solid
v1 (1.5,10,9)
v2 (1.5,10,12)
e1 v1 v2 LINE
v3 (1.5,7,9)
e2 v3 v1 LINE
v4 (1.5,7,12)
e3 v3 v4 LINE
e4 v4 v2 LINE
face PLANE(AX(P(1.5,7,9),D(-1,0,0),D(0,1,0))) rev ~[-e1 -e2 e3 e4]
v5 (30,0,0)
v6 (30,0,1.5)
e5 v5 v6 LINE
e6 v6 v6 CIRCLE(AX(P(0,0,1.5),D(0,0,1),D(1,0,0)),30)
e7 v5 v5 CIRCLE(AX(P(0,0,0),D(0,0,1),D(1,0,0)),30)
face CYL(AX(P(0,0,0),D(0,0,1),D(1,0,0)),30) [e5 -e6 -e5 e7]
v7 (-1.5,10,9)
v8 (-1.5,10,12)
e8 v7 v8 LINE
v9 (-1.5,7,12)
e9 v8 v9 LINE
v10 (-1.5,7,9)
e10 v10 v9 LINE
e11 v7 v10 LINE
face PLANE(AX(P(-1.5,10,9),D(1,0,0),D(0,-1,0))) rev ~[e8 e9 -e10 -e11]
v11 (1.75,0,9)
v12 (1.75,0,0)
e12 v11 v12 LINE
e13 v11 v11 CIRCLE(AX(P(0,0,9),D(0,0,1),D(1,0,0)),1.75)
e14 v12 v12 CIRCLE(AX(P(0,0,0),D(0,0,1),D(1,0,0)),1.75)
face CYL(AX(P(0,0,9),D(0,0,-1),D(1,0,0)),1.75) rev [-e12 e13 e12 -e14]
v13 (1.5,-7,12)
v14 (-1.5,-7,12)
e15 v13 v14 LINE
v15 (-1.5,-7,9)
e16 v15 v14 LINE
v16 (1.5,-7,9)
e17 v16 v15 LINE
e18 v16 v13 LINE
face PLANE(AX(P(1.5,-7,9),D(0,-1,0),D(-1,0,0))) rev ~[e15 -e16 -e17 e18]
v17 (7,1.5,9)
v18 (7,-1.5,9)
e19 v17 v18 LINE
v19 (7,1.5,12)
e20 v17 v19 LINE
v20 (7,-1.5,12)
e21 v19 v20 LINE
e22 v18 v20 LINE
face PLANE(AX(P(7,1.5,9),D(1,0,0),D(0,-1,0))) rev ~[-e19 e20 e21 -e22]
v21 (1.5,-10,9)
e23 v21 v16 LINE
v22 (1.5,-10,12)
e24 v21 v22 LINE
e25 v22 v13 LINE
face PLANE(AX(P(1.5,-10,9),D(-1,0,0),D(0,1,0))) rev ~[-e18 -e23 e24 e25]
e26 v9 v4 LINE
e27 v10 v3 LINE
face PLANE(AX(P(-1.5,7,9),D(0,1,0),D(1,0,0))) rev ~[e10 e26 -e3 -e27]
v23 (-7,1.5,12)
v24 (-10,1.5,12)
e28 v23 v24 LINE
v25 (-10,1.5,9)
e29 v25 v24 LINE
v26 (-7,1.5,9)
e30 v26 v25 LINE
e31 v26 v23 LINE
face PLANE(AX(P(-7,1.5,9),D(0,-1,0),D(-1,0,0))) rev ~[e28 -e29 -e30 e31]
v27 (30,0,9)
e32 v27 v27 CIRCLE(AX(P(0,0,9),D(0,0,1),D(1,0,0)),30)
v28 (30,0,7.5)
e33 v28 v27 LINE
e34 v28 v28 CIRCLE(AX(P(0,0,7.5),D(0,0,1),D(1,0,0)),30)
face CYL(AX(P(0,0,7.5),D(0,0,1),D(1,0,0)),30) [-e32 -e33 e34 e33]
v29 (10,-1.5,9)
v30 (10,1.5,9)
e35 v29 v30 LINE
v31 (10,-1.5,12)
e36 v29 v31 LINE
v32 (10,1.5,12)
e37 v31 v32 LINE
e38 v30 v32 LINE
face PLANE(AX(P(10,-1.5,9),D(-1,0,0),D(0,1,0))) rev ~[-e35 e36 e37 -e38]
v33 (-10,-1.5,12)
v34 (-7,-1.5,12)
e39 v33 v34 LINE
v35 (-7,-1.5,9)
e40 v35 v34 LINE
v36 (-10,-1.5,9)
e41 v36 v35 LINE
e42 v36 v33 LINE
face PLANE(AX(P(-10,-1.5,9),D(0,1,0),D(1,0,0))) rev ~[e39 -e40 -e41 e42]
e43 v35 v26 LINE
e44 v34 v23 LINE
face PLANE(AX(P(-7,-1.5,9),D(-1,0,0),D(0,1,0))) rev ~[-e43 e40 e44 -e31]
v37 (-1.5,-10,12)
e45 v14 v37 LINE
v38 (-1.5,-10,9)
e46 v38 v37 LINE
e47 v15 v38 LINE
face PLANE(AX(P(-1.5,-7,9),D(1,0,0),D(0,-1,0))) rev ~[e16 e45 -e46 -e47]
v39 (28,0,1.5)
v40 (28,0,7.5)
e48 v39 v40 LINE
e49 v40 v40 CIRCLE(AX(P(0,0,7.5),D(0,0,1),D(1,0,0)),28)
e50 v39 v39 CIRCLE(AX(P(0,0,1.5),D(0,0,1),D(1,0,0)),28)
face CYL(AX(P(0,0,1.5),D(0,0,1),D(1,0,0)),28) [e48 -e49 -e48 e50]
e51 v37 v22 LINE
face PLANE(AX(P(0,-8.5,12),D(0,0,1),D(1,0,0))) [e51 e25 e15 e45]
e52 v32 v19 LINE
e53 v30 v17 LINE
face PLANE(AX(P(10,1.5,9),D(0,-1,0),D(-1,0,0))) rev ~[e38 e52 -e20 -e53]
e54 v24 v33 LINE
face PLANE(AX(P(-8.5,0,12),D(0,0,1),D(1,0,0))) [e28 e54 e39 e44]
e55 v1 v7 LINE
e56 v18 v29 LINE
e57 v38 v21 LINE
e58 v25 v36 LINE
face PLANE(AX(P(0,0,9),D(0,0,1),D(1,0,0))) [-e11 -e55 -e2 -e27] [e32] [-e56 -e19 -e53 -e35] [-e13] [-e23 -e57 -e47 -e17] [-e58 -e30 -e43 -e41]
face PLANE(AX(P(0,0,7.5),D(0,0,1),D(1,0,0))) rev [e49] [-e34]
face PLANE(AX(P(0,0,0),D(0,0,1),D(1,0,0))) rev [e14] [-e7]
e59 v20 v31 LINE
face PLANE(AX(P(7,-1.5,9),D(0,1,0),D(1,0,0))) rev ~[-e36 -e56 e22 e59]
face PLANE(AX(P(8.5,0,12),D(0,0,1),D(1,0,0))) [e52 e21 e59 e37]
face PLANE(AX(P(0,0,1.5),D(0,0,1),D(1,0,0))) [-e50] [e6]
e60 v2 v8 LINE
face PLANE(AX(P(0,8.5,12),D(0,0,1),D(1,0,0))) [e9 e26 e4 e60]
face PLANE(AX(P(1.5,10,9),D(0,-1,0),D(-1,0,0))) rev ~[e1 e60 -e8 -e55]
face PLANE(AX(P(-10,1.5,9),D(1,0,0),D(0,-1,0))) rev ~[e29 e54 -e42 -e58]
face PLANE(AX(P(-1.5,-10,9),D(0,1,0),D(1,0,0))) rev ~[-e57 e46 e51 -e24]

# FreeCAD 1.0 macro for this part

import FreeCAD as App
import Part
import Sketcher

doc = App.newDocument("Part")
body = doc.addObject("PartDesign::Body", "Body")

# Sketch on XZ plane
sketch1 = doc.addObject("Sketcher::SketchObject", "Sketch")
body.addObject(sketch1)
sketch1.AttachmentSupport = (doc.XZ_Plane, [""])
sketch1.MapMode = "FlatFace"
sketch1.addGeometry([
    Part.LineSegment(App.Vector(1.8, 9, 0), App.Vector(1.8, 0, 0)),  # 0
    Part.LineSegment(App.Vector(1.8, 0, 0), App.Vector(30, 0, 0)),  # 1
    Part.LineSegment(App.Vector(30, 0, 0), App.Vector(30, 1.5, 0)),  # 2
    Part.LineSegment(App.Vector(30, 1.5, 0), App.Vector(28, 1.5, 0)),  # 3
    Part.LineSegment(App.Vector(28, 1.5, 0), App.Vector(28, 7.5, 0)),  # 4
    Part.LineSegment(App.Vector(28, 7.5, 0), App.Vector(30, 7.5, 0)),  # 5
    Part.LineSegment(App.Vector(30, 7.5, 0), App.Vector(30, 9, 0)),  # 6
    Part.LineSegment(App.Vector(30, 9, 0), App.Vector(1.8, 9, 0)),  # 7
], False)
sketch1.addConstraint([
    Sketcher.Constraint("Coincident", 0, 2, 1, 1),
    Sketcher.Constraint("Coincident", 1, 2, 2, 1),
    Sketcher.Constraint("Coincident", 2, 2, 3, 1),
    Sketcher.Constraint("Coincident", 3, 2, 4, 1),
    Sketcher.Constraint("Coincident", 4, 2, 5, 1),
    Sketcher.Constraint("Coincident", 5, 2, 6, 1),
    Sketcher.Constraint("Coincident", 6, 2, 7, 1),
    Sketcher.Constraint("Coincident", 7, 2, 0, 1),
    Sketcher.Constraint("Vertical", 0),
    Sketcher.Constraint("Horizontal", 1),
    Sketcher.Constraint("Vertical", 2),
    Sketcher.Constraint("Horizontal", 3),
    Sketcher.Constraint("Vertical", 4),
    Sketcher.Constraint("Horizontal", 5),
    Sketcher.Constraint("Vertical", 6),
    Sketcher.Constraint("Horizontal", 7),
    Sketcher.Constraint("PointOnObject", 0, 2, -1),
    Sketcher.Constraint("Vertical", 2, 2, 5, 2),
    Sketcher.Constraint("Equal", 2, 6),
    Sketcher.Constraint("DistanceX", 3, 2, 3, 1, 2.0),
    Sketcher.Constraint("DistanceY", 0, 2, 0, 1, 9.0),
    Sketcher.Constraint("DistanceY", 4, 1, 4, 2, 6.0),
    Sketcher.Constraint("DistanceX", -1, 1, 1, 2, 30.0),
    Sketcher.Constraint("DistanceX", 1, 1, 1, 2, 28.25),
])
revolution = doc.addObject("PartDesign::Revolution", "Revolution")
body.addObject(revolution)
revolution.Profile = sketch1
revolution.ReferenceAxis = (sketch1, ["V_Axis"])
revolution.Angle = 360

# Sketch on XY plane
sketch2 = doc.addObject("Sketcher::SketchObject", "Sketch001")
body.addObject(sketch2)
sketch2.AttachmentSupport = (doc.XY_Plane, [""])
sketch2.MapMode = "FlatFace"
sketch2.AttachmentOffset = App.Placement(App.Vector(0, 0, 9), App.Rotation())
sketch2.addGeometry([
    Part.LineSegment(App.Vector(-1.5, 7, 0), App.Vector(1.5, 7, 0)),  # 0
    Part.LineSegment(App.Vector(1.5, 7, 0), App.Vector(1.5, 10, 0)),  # 1
    Part.LineSegment(App.Vector(1.5, 10, 0), App.Vector(-1.5, 10, 0)),  # 2
    Part.LineSegment(App.Vector(-1.5, 10, 0), App.Vector(-1.5, 7, 0)),  # 3
    Part.LineSegment(App.Vector(1.5, -7, 0), App.Vector(-1.5, -7, 0)),  # 4
    Part.LineSegment(App.Vector(-1.5, -7, 0), App.Vector(-1.5, -10, 0)),  # 5
    Part.LineSegment(App.Vector(-1.5, -10, 0), App.Vector(1.5, -10, 0)),  # 6
    Part.LineSegment(App.Vector(1.5, -10, 0), App.Vector(1.5, -7, 0)),  # 7
    Part.LineSegment(App.Vector(-7, -1.5, 0), App.Vector(-7, 1.5, 0)),  # 8
    Part.LineSegment(App.Vector(-7, 1.5, 0), App.Vector(-10, 1.5, 0)),  # 9
    Part.LineSegment(App.Vector(-10, 1.5, 0), App.Vector(-10, -1.5, 0)),  # 10
    Part.LineSegment(App.Vector(-10, -1.5, 0), App.Vector(-7, -1.5, 0)),  # 11
    Part.LineSegment(App.Vector(10, -1.5, 0), App.Vector(10, 1.5, 0)),  # 12
    Part.LineSegment(App.Vector(10, 1.5, 0), App.Vector(7, 1.5, 0)),  # 13
    Part.LineSegment(App.Vector(7, 1.5, 0), App.Vector(7, -1.5, 0)),  # 14
    Part.LineSegment(App.Vector(7, -1.5, 0), App.Vector(10, -1.5, 0)),  # 15
], False)
sketch2.addConstraint([
    Sketcher.Constraint("Coincident", 0, 2, 1, 1),
    Sketcher.Constraint("Coincident", 1, 2, 2, 1),
    Sketcher.Constraint("Coincident", 2, 2, 3, 1),
    Sketcher.Constraint("Coincident", 3, 2, 0, 1),
    Sketcher.Constraint("Coincident", 4, 2, 5, 1),
    Sketcher.Constraint("Coincident", 5, 2, 6, 1),
    Sketcher.Constraint("Coincident", 6, 2, 7, 1),
    Sketcher.Constraint("Coincident", 7, 2, 4, 1),
    Sketcher.Constraint("Coincident", 8, 2, 9, 1),
    Sketcher.Constraint("Coincident", 9, 2, 10, 1),
    Sketcher.Constraint("Coincident", 10, 2, 11, 1),
    Sketcher.Constraint("Coincident", 11, 2, 8, 1),
    Sketcher.Constraint("Coincident", 12, 2, 13, 1),
    Sketcher.Constraint("Coincident", 13, 2, 14, 1),
    Sketcher.Constraint("Coincident", 14, 2, 15, 1),
    Sketcher.Constraint("Coincident", 15, 2, 12, 1),
    Sketcher.Constraint("Horizontal", 0),
    Sketcher.Constraint("Vertical", 1),
    Sketcher.Constraint("Horizontal", 2),
    Sketcher.Constraint("Vertical", 3),
    Sketcher.Constraint("Horizontal", 4),
    Sketcher.Constraint("Vertical", 5),
    Sketcher.Constraint("Horizontal", 6),
    Sketcher.Constraint("Vertical", 7),
    Sketcher.Constraint("Vertical", 8),
    Sketcher.Constraint("Horizontal", 9),
    Sketcher.Constraint("Vertical", 10),
    Sketcher.Constraint("Horizontal", 11),
    Sketcher.Constraint("Vertical", 12),
    Sketcher.Constraint("Horizontal", 13),
    Sketcher.Constraint("Vertical", 14),
    Sketcher.Constraint("Horizontal", 15),
    Sketcher.Constraint("Symmetric", 0, 2, 4, 2, -1, 1),
    Sketcher.Constraint("Symmetric", 2, 2, 6, 2, -1, 1),
    Sketcher.Constraint("Symmetric", 10, 2, 12, 2, -1, 1),
    Sketcher.Constraint("Symmetric", 8, 2, 14, 2, -1, 1),
    Sketcher.Constraint("Horizontal", 9, 2, 12, 2),
    Sketcher.Constraint("Vertical", 3, 2, 4, 2),
    Sketcher.Constraint("Equal", 6, 9),
    Sketcher.Constraint("Equal", 15, 1),
    Sketcher.Constraint("Equal", 7, 8),
    Sketcher.Constraint("DistanceX", 0, 1, 0, 2, 3.0),
    Sketcher.Constraint("DistanceY", -1, 1, 0, 2, 7.0),
    Sketcher.Constraint("DistanceX", 8, 2, -1, 1, 7.0),
])
pad1 = doc.addObject("PartDesign::Pad", "Pad")
body.addObject(pad1)
pad1.Profile = sketch2
pad1.Length = 3

# Sketch on XY plane
sketch3 = doc.addObject("Sketcher::SketchObject", "Sketch002")
body.addObject(sketch3)
sketch3.AttachmentSupport = (doc.XY_Plane, [""])
sketch3.MapMode = "FlatFace"
sketch3.AttachmentOffset = App.Placement(App.Vector(0, 0, 9), App.Rotation())
sketch3.addGeometry([
    Part.LineSegment(App.Vector(-1.5, 7, 0), App.Vector(1.5, 7, 0)),  # 0
    Part.LineSegment(App.Vector(1.5, 7, 0), App.Vector(1.5, 10, 0)),  # 1
    Part.LineSegment(App.Vector(1.5, 10, 0), App.Vector(-1.5, 10, 0)),  # 2
    Part.LineSegment(App.Vector(-1.5, 10, 0), App.Vector(-1.5, 7, 0)),  # 3
    Part.LineSegment(App.Vector(-7, -1.5, 0), App.Vector(-7, 1.5, 0)),  # 4
    Part.LineSegment(App.Vector(-7, 1.5, 0), App.Vector(-10, 1.5, 0)),  # 5
    Part.LineSegment(App.Vector(-10, 1.5, 0), App.Vector(-10, -1.5, 0)),  # 6
    Part.LineSegment(App.Vector(-10, -1.5, 0), App.Vector(-7, -1.5, 0)),  # 7
    Part.LineSegment(App.Vector(1.5, -7, 0), App.Vector(-1.5, -7, 0)),  # 8
    Part.LineSegment(App.Vector(-1.5, -7, 0), App.Vector(-1.5, -10, 0)),  # 9
    Part.LineSegment(App.Vector(-1.5, -10, 0), App.Vector(1.5, -10, 0)),  # 10
    Part.LineSegment(App.Vector(1.5, -10, 0), App.Vector(1.5, -7, 0)),  # 11
    Part.LineSegment(App.Vector(10, -1.5, 0), App.Vector(10, 1.5, 0)),  # 12
    Part.LineSegment(App.Vector(10, 1.5, 0), App.Vector(7, 1.5, 0)),  # 13
    Part.LineSegment(App.Vector(7, 1.5, 0), App.Vector(7, -1.5, 0)),  # 14
    Part.LineSegment(App.Vector(7, -1.5, 0), App.Vector(10, -1.5, 0)),  # 15
], False)
sketch3.addConstraint([
    Sketcher.Constraint("Coincident", 0, 2, 1, 1),
    Sketcher.Constraint("Coincident", 1, 2, 2, 1),
    Sketcher.Constraint("Coincident", 2, 2, 3, 1),
    Sketcher.Constraint("Coincident", 3, 2, 0, 1),
    Sketcher.Constraint("Coincident", 4, 2, 5, 1),
    Sketcher.Constraint("Coincident", 5, 2, 6, 1),
    Sketcher.Constraint("Coincident", 6, 2, 7, 1),
    Sketcher.Constraint("Coincident", 7, 2, 4, 1),
    Sketcher.Constraint("Coincident", 8, 2, 9, 1),
    Sketcher.Constraint("Coincident", 9, 2, 10, 1),
    Sketcher.Constraint("Coincident", 10, 2, 11, 1),
    Sketcher.Constraint("Coincident", 11, 2, 8, 1),
    Sketcher.Constraint("Coincident", 12, 2, 13, 1),
    Sketcher.Constraint("Coincident", 13, 2, 14, 1),
    Sketcher.Constraint("Coincident", 14, 2, 15, 1),
    Sketcher.Constraint("Coincident", 15, 2, 12, 1),
    Sketcher.Constraint("Horizontal", 0),
    Sketcher.Constraint("Vertical", 1),
    Sketcher.Constraint("Horizontal", 2),
    Sketcher.Constraint("Vertical", 3),
    Sketcher.Constraint("Vertical", 4),
    Sketcher.Constraint("Horizontal", 5),
    Sketcher.Constraint("Vertical", 6),
    Sketcher.Constraint("Horizontal", 7),
    Sketcher.Constraint("Horizontal", 8),
    Sketcher.Constraint("Vertical", 9),
    Sketcher.Constraint("Horizontal", 10),
    Sketcher.Constraint("Vertical", 11),
    Sketcher.Constraint("Vertical", 12),
    Sketcher.Constraint("Horizontal", 13),
    Sketcher.Constraint("Vertical", 14),
    Sketcher.Constraint("Horizontal", 15),
    Sketcher.Constraint("Symmetric", 0, 2, 8, 2, -1, 1),
    Sketcher.Constraint("Symmetric", 2, 2, 10, 2, -1, 1),
    Sketcher.Constraint("Symmetric", 6, 2, 12, 2, -1, 1),
    Sketcher.Constraint("Symmetric", 4, 2, 14, 2, -1, 1),
    Sketcher.Constraint("Horizontal", 5, 2, 12, 2),
    Sketcher.Constraint("Vertical", 3, 2, 8, 2),
    Sketcher.Constraint("Equal", 2, 5),
    Sketcher.Constraint("Equal", 15, 1),
    Sketcher.Constraint("Equal", 3, 4),
    Sketcher.Constraint("DistanceX", 0, 1, 0, 2, 3.0),
    Sketcher.Constraint("DistanceY", -1, 1, 0, 2, 7.0),
    Sketcher.Constraint("DistanceX", 4, 2, -1, 1, 7.0),
])
pad2 = doc.addObject("PartDesign::Pad", "Pad001")
body.addObject(pad2)
pad2.Profile = sketch3
pad2.Length = 3

doc.recompute()
